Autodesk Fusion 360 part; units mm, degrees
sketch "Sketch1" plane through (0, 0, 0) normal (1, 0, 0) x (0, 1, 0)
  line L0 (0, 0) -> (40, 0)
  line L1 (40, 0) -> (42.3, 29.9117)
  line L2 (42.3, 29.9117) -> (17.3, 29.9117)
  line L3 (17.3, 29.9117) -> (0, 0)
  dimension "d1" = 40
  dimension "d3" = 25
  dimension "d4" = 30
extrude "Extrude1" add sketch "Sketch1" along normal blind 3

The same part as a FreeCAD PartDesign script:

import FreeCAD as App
import Part
import Sketcher

V = App.Vector
Q = App.Units.Quantity


def add_polygon(sketch, points):
    """Adds a closed chain of lines whose ends are joined by coincident constraints."""
    first, n = sketch.GeometryCount, len(points)
    for a, b in zip(points, points[1:] + points[:1]):
        sketch.addGeometry(Part.LineSegment(App.Vector(*a, 0), App.Vector(*b, 0)), False)
    for i in range(n):
        sketch.addConstraint(Sketcher.Constraint("Coincident", first + i, 2, first + (i + 1) % n, 1))

doc = App.newDocument("Part")
params = doc.addObject("Spreadsheet::Sheet", "Params")
for row, (alias, value) in enumerate([
    ("sketch1_width", "40 mm"),
    ("sketch1_width2", "25 mm"),
    ("sketch1_length", "30 mm"),
    ("pad1_length", "3 mm"),
], start=1):
    params.set(f"A{row}", alias)
    params.set(f"B{row}", "=" + value)
    params.setAlias(f"B{row}", alias)

body = doc.addObject("PartDesign::Body", "Body")

# Sketch on YZ plane
sketch1 = doc.addObject("Sketcher::SketchObject", "Sketch")
body.addObject(sketch1)
sketch1.AttachmentSupport = (doc.YZ_Plane, [""])
sketch1.MapMode = "FlatFace"
add_polygon(sketch1, [(17, 30), (0, 0), (40, 0), (42, 30)])  # lines 0-3
sketch1.addConstraint([
    Sketcher.Constraint("Horizontal", 1),
    Sketcher.Constraint("Horizontal", 3),
    Sketcher.Constraint("Coincident", 0, 2, -1, 1),
    Sketcher.Constraint("DistanceX", 1, 1, 1, 2, Q("40 mm")),
    Sketcher.Constraint("DistanceX", 3, 2, 3, 1, Q("25 mm")),
    Sketcher.Constraint("Distance", 2, Q("30 mm")),
    Sketcher.Constraint("DistanceX", -1, 1, 2, 2, Q("42.3 mm")),
])
sketch1.setExpression("Constraints[7]", "Params.sketch1_width")
sketch1.setExpression("Constraints[8]", "Params.sketch1_width2")
sketch1.setExpression("Constraints[9]", "Params.sketch1_length")
pad1 = doc.addObject("PartDesign::Pad", "Pad")
body.addObject(pad1)
pad1.Profile = sketch1
pad1.setExpression("Length", "Params.pad1_length")

doc.recompute()
